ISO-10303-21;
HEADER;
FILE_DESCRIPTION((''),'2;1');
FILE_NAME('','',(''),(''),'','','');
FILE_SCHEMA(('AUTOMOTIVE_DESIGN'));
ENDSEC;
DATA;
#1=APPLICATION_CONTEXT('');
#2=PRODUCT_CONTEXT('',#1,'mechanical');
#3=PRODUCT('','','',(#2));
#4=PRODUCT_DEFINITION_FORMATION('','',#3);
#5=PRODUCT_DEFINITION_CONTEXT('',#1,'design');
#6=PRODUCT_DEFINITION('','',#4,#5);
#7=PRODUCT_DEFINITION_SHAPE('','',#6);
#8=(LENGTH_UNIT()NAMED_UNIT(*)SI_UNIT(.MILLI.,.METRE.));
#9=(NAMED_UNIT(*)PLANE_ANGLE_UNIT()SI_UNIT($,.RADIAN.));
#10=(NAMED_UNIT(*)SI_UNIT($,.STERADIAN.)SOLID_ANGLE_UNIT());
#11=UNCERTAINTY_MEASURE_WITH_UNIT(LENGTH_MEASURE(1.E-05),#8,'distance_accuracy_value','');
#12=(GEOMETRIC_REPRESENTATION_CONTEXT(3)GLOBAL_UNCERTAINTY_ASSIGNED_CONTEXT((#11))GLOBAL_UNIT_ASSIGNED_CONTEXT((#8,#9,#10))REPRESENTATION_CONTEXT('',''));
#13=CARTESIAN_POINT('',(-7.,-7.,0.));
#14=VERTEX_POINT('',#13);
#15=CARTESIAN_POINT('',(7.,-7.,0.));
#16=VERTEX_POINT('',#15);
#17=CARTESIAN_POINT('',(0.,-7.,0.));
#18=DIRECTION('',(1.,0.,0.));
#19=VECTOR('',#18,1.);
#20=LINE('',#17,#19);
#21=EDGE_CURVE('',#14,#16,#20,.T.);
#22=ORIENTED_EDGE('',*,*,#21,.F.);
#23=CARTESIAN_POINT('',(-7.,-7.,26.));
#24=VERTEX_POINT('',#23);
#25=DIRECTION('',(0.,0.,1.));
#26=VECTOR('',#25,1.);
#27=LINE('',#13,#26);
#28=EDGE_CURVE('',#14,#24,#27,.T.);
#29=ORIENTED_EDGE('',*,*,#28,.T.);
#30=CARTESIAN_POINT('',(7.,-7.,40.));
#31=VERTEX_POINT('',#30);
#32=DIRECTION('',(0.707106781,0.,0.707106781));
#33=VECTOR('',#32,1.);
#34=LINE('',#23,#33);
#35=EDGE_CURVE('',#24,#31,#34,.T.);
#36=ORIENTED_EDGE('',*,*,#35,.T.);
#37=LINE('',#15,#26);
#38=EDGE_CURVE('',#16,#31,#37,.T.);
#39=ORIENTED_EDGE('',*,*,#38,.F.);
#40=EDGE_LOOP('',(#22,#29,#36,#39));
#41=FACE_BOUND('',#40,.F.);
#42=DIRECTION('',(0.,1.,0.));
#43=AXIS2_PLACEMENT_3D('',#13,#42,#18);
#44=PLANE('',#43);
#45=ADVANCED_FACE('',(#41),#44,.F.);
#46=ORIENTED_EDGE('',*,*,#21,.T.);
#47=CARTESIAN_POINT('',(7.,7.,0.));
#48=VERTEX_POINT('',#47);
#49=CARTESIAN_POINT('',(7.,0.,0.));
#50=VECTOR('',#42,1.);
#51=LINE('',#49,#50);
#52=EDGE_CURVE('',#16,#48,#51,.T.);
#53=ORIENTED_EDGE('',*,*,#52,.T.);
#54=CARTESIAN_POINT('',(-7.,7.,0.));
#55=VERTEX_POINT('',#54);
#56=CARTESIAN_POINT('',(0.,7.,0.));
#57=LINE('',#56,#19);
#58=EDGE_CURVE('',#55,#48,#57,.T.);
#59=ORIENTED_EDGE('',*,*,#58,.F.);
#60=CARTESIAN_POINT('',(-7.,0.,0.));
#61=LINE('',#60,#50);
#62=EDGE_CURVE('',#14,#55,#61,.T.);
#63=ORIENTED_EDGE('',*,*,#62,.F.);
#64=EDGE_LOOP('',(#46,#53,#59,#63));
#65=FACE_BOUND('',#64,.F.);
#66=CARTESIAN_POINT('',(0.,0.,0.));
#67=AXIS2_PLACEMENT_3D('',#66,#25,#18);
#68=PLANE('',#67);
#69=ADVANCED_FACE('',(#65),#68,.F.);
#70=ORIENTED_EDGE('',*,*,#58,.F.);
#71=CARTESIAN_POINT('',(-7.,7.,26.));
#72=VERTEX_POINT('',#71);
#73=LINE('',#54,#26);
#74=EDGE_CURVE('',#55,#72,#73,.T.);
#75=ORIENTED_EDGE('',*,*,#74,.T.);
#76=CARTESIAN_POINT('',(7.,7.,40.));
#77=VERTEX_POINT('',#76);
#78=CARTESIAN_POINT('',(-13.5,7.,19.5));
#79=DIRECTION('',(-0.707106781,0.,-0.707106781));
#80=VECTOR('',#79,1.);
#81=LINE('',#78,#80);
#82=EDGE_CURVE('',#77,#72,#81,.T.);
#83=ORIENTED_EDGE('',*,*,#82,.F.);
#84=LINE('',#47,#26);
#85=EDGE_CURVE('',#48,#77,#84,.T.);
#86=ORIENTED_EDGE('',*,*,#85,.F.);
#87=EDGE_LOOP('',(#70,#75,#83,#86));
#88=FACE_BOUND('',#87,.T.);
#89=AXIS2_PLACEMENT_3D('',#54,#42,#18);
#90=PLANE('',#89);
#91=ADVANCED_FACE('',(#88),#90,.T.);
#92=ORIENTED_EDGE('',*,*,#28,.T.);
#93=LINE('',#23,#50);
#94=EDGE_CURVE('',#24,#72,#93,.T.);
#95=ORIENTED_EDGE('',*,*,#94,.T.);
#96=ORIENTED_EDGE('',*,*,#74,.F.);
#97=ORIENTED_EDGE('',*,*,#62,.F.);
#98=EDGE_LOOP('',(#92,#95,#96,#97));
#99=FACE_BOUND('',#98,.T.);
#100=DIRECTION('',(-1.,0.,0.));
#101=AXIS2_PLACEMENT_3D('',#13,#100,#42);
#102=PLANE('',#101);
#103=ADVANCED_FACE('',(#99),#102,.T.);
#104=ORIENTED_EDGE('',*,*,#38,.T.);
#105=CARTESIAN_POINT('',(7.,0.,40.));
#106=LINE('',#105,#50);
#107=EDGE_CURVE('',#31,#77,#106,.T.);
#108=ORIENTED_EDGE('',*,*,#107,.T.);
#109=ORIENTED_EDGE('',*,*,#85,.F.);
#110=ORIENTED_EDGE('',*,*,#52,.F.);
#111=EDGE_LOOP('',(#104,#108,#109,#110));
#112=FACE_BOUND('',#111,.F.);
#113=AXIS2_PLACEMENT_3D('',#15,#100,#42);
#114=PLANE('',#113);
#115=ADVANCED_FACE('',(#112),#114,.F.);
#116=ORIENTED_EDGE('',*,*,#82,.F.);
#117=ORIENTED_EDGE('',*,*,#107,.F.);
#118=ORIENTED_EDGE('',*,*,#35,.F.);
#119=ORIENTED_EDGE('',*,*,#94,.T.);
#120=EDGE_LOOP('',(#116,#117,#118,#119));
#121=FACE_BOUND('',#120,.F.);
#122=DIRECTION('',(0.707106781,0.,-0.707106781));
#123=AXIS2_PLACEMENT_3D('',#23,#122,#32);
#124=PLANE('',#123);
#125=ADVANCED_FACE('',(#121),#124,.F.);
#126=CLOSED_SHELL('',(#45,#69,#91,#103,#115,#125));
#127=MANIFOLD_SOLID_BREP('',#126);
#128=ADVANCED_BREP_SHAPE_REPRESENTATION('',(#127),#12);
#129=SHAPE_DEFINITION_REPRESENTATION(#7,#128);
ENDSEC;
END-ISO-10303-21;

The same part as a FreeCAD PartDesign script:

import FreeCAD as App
import Part
import Sketcher

V = App.Vector
Q = App.Units.Quantity

doc = App.newDocument("Part")
body = doc.addObject("PartDesign::Body", "Body")

# Sketch on XY plane
sketch1 = body.newObject("Sketcher::SketchObject", "Sketch")
sketch1.AttachmentSupport = (doc.getObject("XY_Plane"), [""])
sketch1.MapMode = "FlatFace"
sketch1.addGeometry([
    Part.LineSegment(V(-7, 7, 0), V(-7, -7, 0)),
    Part.LineSegment(V(-7, -7, 0), V(7, -7, 0)),
    Part.LineSegment(V(7, -7, 0), V(7, 7, 0)),
    Part.LineSegment(V(7, 7, 0), V(-7, 7, 0)),
], False)
sketch1.addConstraint([
    Sketcher.Constraint("Coincident", 0, 2, 1, 1),
    Sketcher.Constraint("Coincident", 1, 2, 2, 1),
    Sketcher.Constraint("Coincident", 2, 2, 3, 1),
    Sketcher.Constraint("Coincident", 3, 2, 0, 1),
    Sketcher.Constraint("Vertical", 0),
    Sketcher.Constraint("Horizontal", 1),
    Sketcher.Constraint("Vertical", 2),
    Sketcher.Constraint("Horizontal", 3),
    Sketcher.Constraint("Symmetric", 0, 2, 2, 2, -1, 1),
    Sketcher.Constraint("Equal", 3, 0),
    Sketcher.Constraint("DistanceX", 1, 1, 1, 2, Q("14 mm")),
])
pad1 = body.newObject("PartDesign::Pad", "Pad")
pad1.Profile = sketch1
pad1.Length = 40

# Sketch on XZ plane
sketch2 = body.newObject("Sketcher::SketchObject", "Sketch001")
sketch2.AttachmentSupport = (doc.getObject("XZ_Plane"), [""])
sketch2.MapMode = "FlatFace"
sketch2.AttachmentOffset = App.Placement(V(0, 0, 7), App.Rotation())
sketch2.addGeometry([
    Part.LineSegment(V(-7, 26, 0), V(7, 40, 0)),
    Part.LineSegment(V(7, 40, 0), V(-7, 40, 0)),
    Part.LineSegment(V(-7, 40, 0), V(-7, 26, 0)),
], False)
sketch2.addConstraint([
    Sketcher.Constraint("Coincident", 0, 2, 1, 1),
    Sketcher.Constraint("Coincident", 1, 2, 2, 1),
    Sketcher.Constraint("Coincident", 2, 2, 0, 1),
    Sketcher.Constraint("Horizontal", 1),
    Sketcher.Constraint("Vertical", 2),
    Sketcher.Constraint("Equal", 1, 2),
    Sketcher.Constraint("DistanceX", 1, 2, 1, 1, Q("14 mm")),
    Sketcher.Constraint("DistanceX", -1, 1, 0, 2, Q("7 mm")),
    Sketcher.Constraint("DistanceY", -1, 1, 0, 2, Q("40 mm")),
])
pocket1 = body.newObject("PartDesign::Pocket", "Pocket")
pocket1.Profile = sketch2
pocket1.Length = 25

doc.recompute()
